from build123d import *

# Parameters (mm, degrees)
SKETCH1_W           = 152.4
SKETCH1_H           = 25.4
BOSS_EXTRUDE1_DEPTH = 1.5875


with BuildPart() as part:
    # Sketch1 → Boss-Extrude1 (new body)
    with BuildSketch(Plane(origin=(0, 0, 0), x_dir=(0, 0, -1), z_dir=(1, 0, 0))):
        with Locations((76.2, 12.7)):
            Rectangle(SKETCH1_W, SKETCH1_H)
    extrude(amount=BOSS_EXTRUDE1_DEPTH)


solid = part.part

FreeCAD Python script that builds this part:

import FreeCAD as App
import Part
import Sketcher

V = App.Vector
Q = App.Units.Quantity


def add_polygon(sketch, points):
    """Adds a closed chain of lines whose ends are joined by coincident constraints."""
    first, n = sketch.GeometryCount, len(points)
    for a, b in zip(points, points[1:] + points[:1]):
        sketch.addGeometry(Part.LineSegment(App.Vector(*a, 0), App.Vector(*b, 0)), False)
    for i in range(n):
        sketch.addConstraint(Sketcher.Constraint("Coincident", first + i, 2, first + (i + 1) % n, 1))

doc = App.newDocument("Part")
body = doc.addObject("PartDesign::Body", "Body")

sketch1 = body.newObject("Sketcher::SketchObject", "Sketch")
sketch1.AttachmentSupport = (doc.getObject("YZ_Plane"), [""])
sketch1.MapMode = "FlatFace"
add_polygon(sketch1, [(25, 0), (0, 0), (0, -152), (25, -152)])
sketch1.addConstraint([
    Sketcher.Constraint("Horizontal", 0),
    Sketcher.Constraint("Vertical", 1),
    Sketcher.Constraint("Horizontal", 2),
    Sketcher.Constraint("Vertical", 3),
    Sketcher.Constraint("Coincident", 0, 2, -1, 1),
    Sketcher.Constraint("DistanceX", 0, 2, 0, 1, Q("1 in")),
    Sketcher.Constraint("DistanceY", 1, 2, 1, 1, Q("6 in")),
])
pad1 = body.newObject("PartDesign::Pad", "Pad")
pad1.Profile = sketch1
pad1.Length = Q("0.0625 in")

doc.recompute()
